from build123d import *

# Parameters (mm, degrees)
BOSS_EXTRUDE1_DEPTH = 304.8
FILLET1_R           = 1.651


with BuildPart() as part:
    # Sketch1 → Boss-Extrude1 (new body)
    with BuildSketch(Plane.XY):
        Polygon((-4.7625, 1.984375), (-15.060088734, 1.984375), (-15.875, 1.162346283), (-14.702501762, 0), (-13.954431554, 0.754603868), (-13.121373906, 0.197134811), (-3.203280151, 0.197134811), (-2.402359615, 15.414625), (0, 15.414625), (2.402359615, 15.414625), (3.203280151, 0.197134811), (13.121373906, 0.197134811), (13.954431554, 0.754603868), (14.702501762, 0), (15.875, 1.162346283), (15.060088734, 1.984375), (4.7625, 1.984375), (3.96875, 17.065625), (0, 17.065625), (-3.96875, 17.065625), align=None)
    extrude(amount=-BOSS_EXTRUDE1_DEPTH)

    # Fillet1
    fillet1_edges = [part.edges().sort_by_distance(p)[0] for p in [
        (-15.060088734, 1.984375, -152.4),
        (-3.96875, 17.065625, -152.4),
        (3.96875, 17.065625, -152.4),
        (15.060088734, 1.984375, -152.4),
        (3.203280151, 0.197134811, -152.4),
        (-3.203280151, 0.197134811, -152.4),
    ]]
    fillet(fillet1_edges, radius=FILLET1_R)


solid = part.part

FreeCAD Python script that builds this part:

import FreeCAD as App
import Part
import Sketcher

V = App.Vector
Q = App.Units.Quantity


def edges_at(feature, points):
    """Names of the edges that pass closest to the given points."""
    edges = feature.Shape.Edges
    near = lambda p: min(range(len(edges)), key=lambda i: edges[i].distToShape(Part.Vertex(*p))[0])
    return sorted({f"Edge{near(p) + 1}" for p in points})

doc = App.newDocument("Part")
params = doc.addObject("Spreadsheet::Sheet", "Params")
for row, (alias, value) in enumerate([
    ("sketch1_width", "0.3125 in"),
    ("sketch1_length", "0.065 in"),
    ("pad1_length", "12 in"),
    ("fillet_radius", "0.065 in"),
], start=1):
    params.set(f"A{row}", alias)
    params.set(f"B{row}", "=" + value)
    params.setAlias(f"B{row}", alias)

body = doc.addObject("PartDesign::Body", "Body")

sketch1 = body.newObject("Sketcher::SketchObject", "Sketch")
sketch1.AttachmentSupport = (doc.getObject("XY_Plane"), [""])
sketch1.MapMode = "FlatFace"
sketch1.addGeometry(Part.LineSegment(V(-4.8, 2, 0), V(-15.1, 2, 0)), False)
sketch1.addGeometry(Part.LineSegment(V(-15.1, 2, 0), V(-15.9, 1.2, 0)), False)
sketch1.addGeometry(Part.LineSegment(V(-15.9, 1.2, 0), V(-14.7, 0, 0)), False)
sketch1.addGeometry(Part.LineSegment(V(-14.7, 0, 0), V(-14, 0.8, 0)), False)
sketch1.addGeometry(Part.LineSegment(V(-14, 0.8, 0), V(-13.1, 0.2, 0)), False)
sketch1.addGeometry(Part.LineSegment(V(-13.1, 0.2, 0), V(-3.2, 0.2, 0)), False)
sketch1.addGeometry(Part.LineSegment(V(-3.2, 0.2, 0), V(-2.4, 15.4, 0)), False)
sketch1.addGeometry(Part.LineSegment(V(-2.4, 15.4, 0), V(2.4, 15.4, 0)), False)
sketch1.addGeometry(Part.LineSegment(V(2.4, 15.4, 0), V(3.2, 0.2, 0)), False)
sketch1.addGeometry(Part.LineSegment(V(3.2, 0.2, 0), V(13.1, 0.2, 0)), False)
sketch1.addGeometry(Part.LineSegment(V(13.1, 0.2, 0), V(14, 0.8, 0)), False)
sketch1.addGeometry(Part.LineSegment(V(14, 0.8, 0), V(14.7, 0, 0)), False)
sketch1.addGeometry(Part.LineSegment(V(14.7, 0, 0), V(15.9, 1.2, 0)), False)
sketch1.addGeometry(Part.LineSegment(V(15.9, 1.2, 0), V(15.1, 2, 0)), False)
sketch1.addGeometry(Part.LineSegment(V(15.1, 2, 0), V(4.8, 2, 0)), False)
sketch1.addGeometry(Part.LineSegment(V(4.8, 2, 0), V(4, 17.1, 0)), False)
sketch1.addGeometry(Part.LineSegment(V(4, 17.1, 0), V(-4, 17.1, 0)), False)
sketch1.addGeometry(Part.LineSegment(V(-4, 17.1, 0), V(-4.8, 2, 0)), False)
sketch1.addConstraint(Sketcher.Constraint("Coincident", 0, 2, 1, 1))
sketch1.addConstraint(Sketcher.Constraint("Coincident", 1, 2, 2, 1))
sketch1.addConstraint(Sketcher.Constraint("Coincident", 2, 2, 3, 1))
sketch1.addConstraint(Sketcher.Constraint("Coincident", 3, 2, 4, 1))
sketch1.addConstraint(Sketcher.Constraint("Coincident", 4, 2, 5, 1))
sketch1.addConstraint(Sketcher.Constraint("Coincident", 5, 2, 6, 1))
sketch1.addConstraint(Sketcher.Constraint("Coincident", 6, 2, 7, 1))
sketch1.addConstraint(Sketcher.Constraint("Coincident", 7, 2, 8, 1))
sketch1.addConstraint(Sketcher.Constraint("Coincident", 8, 2, 9, 1))
sketch1.addConstraint(Sketcher.Constraint("Coincident", 9, 2, 10, 1))
sketch1.addConstraint(Sketcher.Constraint("Coincident", 10, 2, 11, 1))
sketch1.addConstraint(Sketcher.Constraint("Coincident", 11, 2, 12, 1))
sketch1.addConstraint(Sketcher.Constraint("Coincident", 12, 2, 13, 1))
sketch1.addConstraint(Sketcher.Constraint("Coincident", 13, 2, 14, 1))
sketch1.addConstraint(Sketcher.Constraint("Coincident", 14, 2, 15, 1))
sketch1.addConstraint(Sketcher.Constraint("Coincident", 15, 2, 16, 1))
sketch1.addConstraint(Sketcher.Constraint("Coincident", 16, 2, 17, 1))
sketch1.addConstraint(Sketcher.Constraint("Coincident", 17, 2, 0, 1))
sketch1.addConstraint(Sketcher.Constraint("Horizontal", 0))
sketch1.addConstraint(Sketcher.Constraint("Horizontal", 5))
sketch1.addConstraint(Sketcher.Constraint("Horizontal", 7))
sketch1.addConstraint(Sketcher.Constraint("Horizontal", 9))
sketch1.addConstraint(Sketcher.Constraint("Horizontal", 14))
sketch1.addConstraint(Sketcher.Constraint("Horizontal", 16))
sketch1.addConstraint(Sketcher.Constraint("Symmetric", 2, 2, 11, 2, -1, 1))
sketch1.addConstraint(Sketcher.Constraint("Symmetric", 5, 2, 8, 2, -2))
sketch1.addConstraint(Sketcher.Constraint("Symmetric", 3, 2, 10, 2, -2))
sketch1.addConstraint(Sketcher.Constraint("Symmetric", 1, 2, 12, 2, -2))
sketch1.addConstraint(Sketcher.Constraint("Symmetric", 0, 2, 13, 2, -2))
sketch1.addConstraint(Sketcher.Constraint("PointOnObject", 2, 2, -1))
sketch1.addConstraint(Sketcher.Constraint("Perpendicular", 1, 2))
sketch1.addConstraint(Sketcher.Constraint("Perpendicular", 2, 3))
sketch1.addConstraint(Sketcher.Constraint("Parallel", 8, 15))
sketch1.addConstraint(Sketcher.Constraint("Parallel", 6, 17))
sketch1.addConstraint(Sketcher.Constraint("Equal", 5, 9))
sketch1.addConstraint(Sketcher.Constraint("Equal", 0, 14))
sketch1.addConstraint(Sketcher.Constraint("Equal", 6, 8))
sketch1.addConstraint(Sketcher.Constraint("DistanceX", 16, 2, 16, 1, Q("0.3125 in")))
sketch1.addConstraint(Sketcher.Constraint("Distance", 2, Q("0.065 in")))
sketch1.addConstraint(Sketcher.Constraint("DistanceY", -1, 1, 0, 2, Q("0.078125 in")))
sketch1.addConstraint(Sketcher.Constraint("DistanceX", 1, 2, -1, 1, Q("0.625 in")))
sketch1.addConstraint(Sketcher.Constraint("DistanceX", -1, 1, 14, 2, Q("0.1875 in")))
sketch1.addConstraint(Sketcher.Constraint("DistanceY", -1, 1, 15, 2, Q("0.671875 in")))
sketch1.addConstraint(Sketcher.Constraint("DistanceY", 7, 2, 15, 2, Q("0.065 in")))
sketch1.addConstraint(Sketcher.Constraint("DistanceX", 0, 2, 0, 1, Q("10.297589 mm")))
sketch1.addConstraint(Sketcher.Constraint("DistanceX", 7, 1, 7, 2, Q("4.804719 mm")))
sketch1.addConstraint(Sketcher.Constraint("Distance", 3, Q("1.062561 mm")))
sketch1.addConstraint(Sketcher.Constraint("DistanceX", 5, 1, 5, 2, Q("9.918094 mm")))
sketch1.addConstraint(Sketcher.Constraint("DistanceX", 5, 2, -1, 1, Q("3.20328 mm")))
sketch1.setExpression("Constraints[37]", "Params.sketch1_width")
sketch1.setExpression("Constraints[38]", "Params.sketch1_length")
pad1 = body.newObject("PartDesign::Pad", "Pad")
pad1.Profile = sketch1
pad1.setExpression("Length", "Params.pad1_length")
pad1.Reversed = True
doc.recompute()

fillet = body.newObject("PartDesign::Fillet", "Fillet")
fillet.Base = (pad1, edges_at(pad1, [
    (-15.06, 1.984, -152.4),
    (-3.969, 17.066, -152.4),
    (3.969, 17.066, -152.4),
    (15.06, 1.984, -152.4),
    (3.203, 0.197, -152.4),
    (-3.203, 0.197, -152.4),
]))
fillet.setExpression("Radius", "Params.fillet_radius")

doc.recompute()
